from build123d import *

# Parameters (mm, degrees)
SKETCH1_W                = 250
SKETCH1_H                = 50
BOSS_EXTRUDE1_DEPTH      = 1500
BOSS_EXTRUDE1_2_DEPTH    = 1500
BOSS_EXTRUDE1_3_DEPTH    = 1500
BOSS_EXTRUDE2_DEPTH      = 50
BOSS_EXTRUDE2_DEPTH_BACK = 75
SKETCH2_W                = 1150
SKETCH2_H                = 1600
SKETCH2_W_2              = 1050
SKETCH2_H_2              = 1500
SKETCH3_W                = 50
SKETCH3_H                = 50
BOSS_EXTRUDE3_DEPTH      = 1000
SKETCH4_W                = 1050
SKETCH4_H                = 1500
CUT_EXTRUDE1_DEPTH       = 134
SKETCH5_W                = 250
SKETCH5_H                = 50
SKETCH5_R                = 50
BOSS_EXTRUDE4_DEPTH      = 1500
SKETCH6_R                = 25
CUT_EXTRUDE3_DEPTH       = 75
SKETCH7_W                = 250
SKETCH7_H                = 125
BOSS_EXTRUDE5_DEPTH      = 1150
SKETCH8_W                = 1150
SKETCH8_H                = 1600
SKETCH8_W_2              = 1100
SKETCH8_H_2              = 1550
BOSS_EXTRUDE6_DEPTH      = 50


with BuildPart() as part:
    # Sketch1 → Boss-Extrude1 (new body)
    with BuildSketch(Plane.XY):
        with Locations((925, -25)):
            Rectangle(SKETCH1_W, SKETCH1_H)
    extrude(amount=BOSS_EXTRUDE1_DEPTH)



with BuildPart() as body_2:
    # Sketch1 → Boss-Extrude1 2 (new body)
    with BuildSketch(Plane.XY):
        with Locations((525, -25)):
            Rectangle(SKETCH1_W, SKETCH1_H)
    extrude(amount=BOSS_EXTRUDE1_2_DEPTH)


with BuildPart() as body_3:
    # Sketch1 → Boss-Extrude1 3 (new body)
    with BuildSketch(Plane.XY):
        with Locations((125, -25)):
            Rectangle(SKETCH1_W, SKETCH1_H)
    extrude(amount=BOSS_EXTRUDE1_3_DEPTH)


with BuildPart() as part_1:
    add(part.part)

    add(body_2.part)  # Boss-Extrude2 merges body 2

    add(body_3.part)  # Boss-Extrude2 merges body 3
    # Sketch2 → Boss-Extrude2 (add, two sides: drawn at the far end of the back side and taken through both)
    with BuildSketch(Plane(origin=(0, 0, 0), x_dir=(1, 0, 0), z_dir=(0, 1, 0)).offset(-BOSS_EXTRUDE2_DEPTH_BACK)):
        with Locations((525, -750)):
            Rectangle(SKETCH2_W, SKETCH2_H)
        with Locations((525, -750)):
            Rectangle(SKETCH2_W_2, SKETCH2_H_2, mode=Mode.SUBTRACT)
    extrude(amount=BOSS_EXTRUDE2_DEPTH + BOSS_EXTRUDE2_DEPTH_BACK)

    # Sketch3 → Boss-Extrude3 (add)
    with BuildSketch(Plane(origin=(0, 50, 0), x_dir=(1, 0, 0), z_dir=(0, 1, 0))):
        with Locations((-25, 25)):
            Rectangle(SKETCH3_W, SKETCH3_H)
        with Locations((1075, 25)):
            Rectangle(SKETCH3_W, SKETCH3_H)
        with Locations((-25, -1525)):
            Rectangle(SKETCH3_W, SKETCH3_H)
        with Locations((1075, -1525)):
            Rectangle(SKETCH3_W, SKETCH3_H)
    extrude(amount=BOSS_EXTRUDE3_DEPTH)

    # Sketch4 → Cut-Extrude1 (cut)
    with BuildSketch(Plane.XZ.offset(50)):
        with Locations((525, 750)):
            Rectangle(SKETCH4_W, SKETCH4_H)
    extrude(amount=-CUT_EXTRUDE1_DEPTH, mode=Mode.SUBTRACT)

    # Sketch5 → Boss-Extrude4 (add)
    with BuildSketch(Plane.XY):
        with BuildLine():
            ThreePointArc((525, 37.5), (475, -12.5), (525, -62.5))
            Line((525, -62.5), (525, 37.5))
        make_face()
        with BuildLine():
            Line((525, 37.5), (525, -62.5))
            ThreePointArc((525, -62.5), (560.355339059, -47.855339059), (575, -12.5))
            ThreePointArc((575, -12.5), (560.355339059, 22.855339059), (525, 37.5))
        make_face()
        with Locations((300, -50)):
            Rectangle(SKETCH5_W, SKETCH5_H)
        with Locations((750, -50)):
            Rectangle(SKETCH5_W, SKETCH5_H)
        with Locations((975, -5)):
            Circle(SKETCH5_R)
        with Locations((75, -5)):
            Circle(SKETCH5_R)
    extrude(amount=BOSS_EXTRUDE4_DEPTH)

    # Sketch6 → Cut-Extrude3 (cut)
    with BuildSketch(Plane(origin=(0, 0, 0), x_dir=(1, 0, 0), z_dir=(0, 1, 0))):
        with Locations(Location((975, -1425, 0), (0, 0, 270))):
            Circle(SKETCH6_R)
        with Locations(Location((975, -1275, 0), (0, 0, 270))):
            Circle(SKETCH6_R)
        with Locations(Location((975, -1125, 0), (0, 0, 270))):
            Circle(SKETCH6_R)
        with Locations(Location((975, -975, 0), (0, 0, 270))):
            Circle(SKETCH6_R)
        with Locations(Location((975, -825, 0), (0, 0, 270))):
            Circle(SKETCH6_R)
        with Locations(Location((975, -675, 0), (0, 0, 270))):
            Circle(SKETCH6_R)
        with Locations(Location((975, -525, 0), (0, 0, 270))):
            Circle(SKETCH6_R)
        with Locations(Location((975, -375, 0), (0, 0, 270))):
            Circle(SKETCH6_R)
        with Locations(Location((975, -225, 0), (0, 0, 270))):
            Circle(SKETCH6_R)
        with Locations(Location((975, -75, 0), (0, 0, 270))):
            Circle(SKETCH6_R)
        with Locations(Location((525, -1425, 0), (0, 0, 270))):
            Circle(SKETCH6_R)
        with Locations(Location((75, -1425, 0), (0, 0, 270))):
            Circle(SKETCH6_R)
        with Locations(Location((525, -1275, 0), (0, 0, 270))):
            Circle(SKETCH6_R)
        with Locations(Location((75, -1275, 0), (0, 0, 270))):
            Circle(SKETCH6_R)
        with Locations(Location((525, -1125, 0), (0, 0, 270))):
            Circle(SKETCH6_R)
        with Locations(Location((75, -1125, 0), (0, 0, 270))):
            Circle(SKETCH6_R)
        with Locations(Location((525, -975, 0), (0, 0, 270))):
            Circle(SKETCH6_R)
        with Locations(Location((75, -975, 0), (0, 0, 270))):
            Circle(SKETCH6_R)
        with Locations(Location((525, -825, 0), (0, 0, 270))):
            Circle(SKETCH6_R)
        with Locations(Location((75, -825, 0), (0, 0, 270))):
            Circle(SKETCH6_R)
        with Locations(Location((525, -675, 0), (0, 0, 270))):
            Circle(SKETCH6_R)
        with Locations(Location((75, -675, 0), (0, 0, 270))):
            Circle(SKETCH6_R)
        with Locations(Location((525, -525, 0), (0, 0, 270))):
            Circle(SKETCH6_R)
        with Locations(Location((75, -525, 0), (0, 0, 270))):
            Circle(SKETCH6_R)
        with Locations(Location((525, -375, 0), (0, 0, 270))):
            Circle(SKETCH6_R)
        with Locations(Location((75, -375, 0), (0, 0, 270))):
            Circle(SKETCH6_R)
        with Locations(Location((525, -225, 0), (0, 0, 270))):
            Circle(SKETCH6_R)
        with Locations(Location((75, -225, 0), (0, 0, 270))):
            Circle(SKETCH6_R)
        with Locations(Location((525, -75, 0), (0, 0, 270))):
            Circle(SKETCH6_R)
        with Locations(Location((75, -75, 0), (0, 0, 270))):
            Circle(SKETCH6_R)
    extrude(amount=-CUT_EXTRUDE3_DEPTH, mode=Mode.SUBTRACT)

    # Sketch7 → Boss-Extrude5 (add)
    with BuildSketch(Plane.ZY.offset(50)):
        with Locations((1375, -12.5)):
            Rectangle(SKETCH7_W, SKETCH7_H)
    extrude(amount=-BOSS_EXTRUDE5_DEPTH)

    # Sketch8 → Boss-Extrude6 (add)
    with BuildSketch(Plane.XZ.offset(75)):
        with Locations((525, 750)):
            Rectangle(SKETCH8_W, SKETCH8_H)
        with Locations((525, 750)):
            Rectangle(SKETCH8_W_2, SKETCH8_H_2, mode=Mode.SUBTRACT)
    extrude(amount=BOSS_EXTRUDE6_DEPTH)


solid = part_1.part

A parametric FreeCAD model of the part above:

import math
import FreeCAD as App
import Part
import Sketcher
from FreeCAD import Vector
Q = App.Units.Quantity

doc = App.newDocument("Part")
params = doc.addObject("Spreadsheet::Sheet", "Params")
for row, (alias, value) in enumerate([
    ("sketch1_width", "250 mm"),
    ("sketch1_height", "50 mm"),
    ("pad1_length", "1500 mm"),
    ("sketch2_width", "250 mm"),
    ("sketch2_height", "50 mm"),
    ("pad2_length", "1500 mm"),
    ("sketch3_width", "250 mm"),
    ("sketch3_height", "50 mm"),
    ("pad3_length", "1500 mm"),
    ("sketch4_width", "1150 mm"),
    ("sketch4_width2", "1050 mm"),
    ("sketch4_height", "1600 mm"),
    ("sketch4_height2", "1500 mm"),
    ("pad4_length", "50 mm"),
    ("pad4_length2", "75 mm"),
    ("sketch5_width", "50 mm"),
    ("pad5_length", "1000 mm"),
    ("sketch6_width", "1050 mm"),
    ("sketch6_height", "1500 mm"),
    ("pocket1_length", "134 mm"),
    ("sketch7_diameter", "100 mm"),
    ("sketch7_width", "250 mm"),
    ("sketch7_height", "50 mm"),
    ("pad6_length", "1500 mm"),
    ("sketch8_diameter", "50 mm"),
    ("pocket2_length", "75 mm"),
    ("sketch9_width", "125 mm"),
    ("sketch9_height", "250 mm"),
    ("pad7_length", "1150 mm"),
    ("sketch10_width", "1150 mm"),
    ("sketch10_width2", "1100 mm"),
    ("sketch10_height", "1600 mm"),
    ("sketch10_height2", "1550 mm"),
    ("pad8_length", "50 mm"),
], start=1):
    params.set(f"A{row}", alias)
    params.set(f"B{row}", "=" + value)
    params.setAlias(f"B{row}", alias)

body = doc.addObject("PartDesign::Body", "Body")

sketch1 = doc.addObject("Sketcher::SketchObject", "Sketch")
body.addObject(sketch1)
sketch1.AttachmentSupport = (doc.XY_Plane, [""])
sketch1.MapMode = "FlatFace"
sketch1.addGeometry([
    Part.LineSegment(Vector(800, 0, 0), Vector(800, -50, 0)),
    Part.LineSegment(Vector(800, -50, 0), Vector(1050, -50, 0)),
    Part.LineSegment(Vector(1050, -50, 0), Vector(1050, 0, 0)),
    Part.LineSegment(Vector(1050, 0, 0), Vector(800, 0, 0)),
], False)
sketch1.addConstraint([
    Sketcher.Constraint("Coincident", 0, 2, 1, 1),
    Sketcher.Constraint("Coincident", 1, 2, 2, 1),
    Sketcher.Constraint("Coincident", 2, 2, 3, 1),
    Sketcher.Constraint("Coincident", 3, 2, 0, 1),
    Sketcher.Constraint("Vertical", 0),
    Sketcher.Constraint("Horizontal", 1),
    Sketcher.Constraint("Vertical", 2),
    Sketcher.Constraint("Horizontal", 3),
    Sketcher.Constraint("PointOnObject", 2, 2, -1),
    Sketcher.Constraint("DistanceX", 1, 1, 1, 2, Q("250 mm")),
    Sketcher.Constraint("DistanceY", 0, 2, 0, 1, Q("50 mm")),
    Sketcher.Constraint("DistanceX", -1, 1, 0, 2, Q("800 mm")),
])
sketch1.setExpression("Constraints[9]", "Params.sketch1_width")
sketch1.setExpression("Constraints[10]", "Params.sketch1_height")
pad1 = doc.addObject("PartDesign::Pad", "Pad")
body.addObject(pad1)
pad1.Profile = sketch1
pad1.setExpression("Length", "Params.pad1_length")
body2 = doc.addObject("PartDesign::Body", "Body001")

sketch2 = doc.addObject("Sketcher::SketchObject", "Sketch001")
body2.addObject(sketch2)
sketch2.AttachmentSupport = (doc.getObject("XY_Plane001"), [""])
sketch2.MapMode = "FlatFace"
sketch2.addGeometry([
    Part.LineSegment(Vector(400, 0, 0), Vector(400, -50, 0)),
    Part.LineSegment(Vector(400, -50, 0), Vector(650, -50, 0)),
    Part.LineSegment(Vector(650, -50, 0), Vector(650, 0, 0)),
    Part.LineSegment(Vector(650, 0, 0), Vector(400, 0, 0)),
], False)
sketch2.addConstraint([
    Sketcher.Constraint("Coincident", 0, 2, 1, 1),
    Sketcher.Constraint("Coincident", 1, 2, 2, 1),
    Sketcher.Constraint("Coincident", 2, 2, 3, 1),
    Sketcher.Constraint("Coincident", 3, 2, 0, 1),
    Sketcher.Constraint("Vertical", 0),
    Sketcher.Constraint("Horizontal", 1),
    Sketcher.Constraint("Vertical", 2),
    Sketcher.Constraint("Horizontal", 3),
    Sketcher.Constraint("PointOnObject", 2, 2, -1),
    Sketcher.Constraint("DistanceX", 1, 1, 1, 2, Q("250 mm")),
    Sketcher.Constraint("DistanceY", 0, 2, 0, 1, Q("50 mm")),
    Sketcher.Constraint("DistanceX", -1, 1, 0, 2, Q("400 mm")),
])
sketch2.setExpression("Constraints[9]", "Params.sketch2_width")
sketch2.setExpression("Constraints[10]", "Params.sketch2_height")
pad2 = doc.addObject("PartDesign::Pad", "Pad001")
body2.addObject(pad2)
pad2.Profile = sketch2
pad2.setExpression("Length", "Params.pad2_length")
body3 = doc.addObject("PartDesign::Body", "Body002")

sketch3 = doc.addObject("Sketcher::SketchObject", "Sketch002")
body3.addObject(sketch3)
sketch3.AttachmentSupport = (doc.getObject("XY_Plane002"), [""])
sketch3.MapMode = "FlatFace"
sketch3.addGeometry([
    Part.LineSegment(Vector(0, 0, 0), Vector(0, -50, 0)),
    Part.LineSegment(Vector(0, -50, 0), Vector(250, -50, 0)),
    Part.LineSegment(Vector(250, -50, 0), Vector(250, 0, 0)),
    Part.LineSegment(Vector(250, 0, 0), Vector(0, 0, 0)),
], False)
sketch3.addConstraint([
    Sketcher.Constraint("Coincident", 0, 2, 1, 1),
    Sketcher.Constraint("Coincident", 1, 2, 2, 1),
    Sketcher.Constraint("Coincident", 2, 2, 3, 1),
    Sketcher.Constraint("Coincident", 3, 2, 0, 1),
    Sketcher.Constraint("Vertical", 0),
    Sketcher.Constraint("Horizontal", 1),
    Sketcher.Constraint("Vertical", 2),
    Sketcher.Constraint("Horizontal", 3),
    Sketcher.Constraint("Coincident", 3, 2, -1, 1),
    Sketcher.Constraint("DistanceX", 1, 1, 1, 2, Q("250 mm")),
    Sketcher.Constraint("DistanceY", 0, 2, 0, 1, Q("50 mm")),
])
sketch3.setExpression("Constraints[9]", "Params.sketch3_width")
sketch3.setExpression("Constraints[10]", "Params.sketch3_height")
pad3 = doc.addObject("PartDesign::Pad", "Pad002")
body3.addObject(pad3)
pad3.Profile = sketch3
pad3.setExpression("Length", "Params.pad3_length")
body.AllowCompound = True
doc.recompute()

boolean = doc.addObject("PartDesign::Boolean", "Boolean")
body.addObject(boolean)
boolean.Type = "Fuse"
boolean.addObjects([body2])
doc.recompute()

boolean2 = doc.addObject("PartDesign::Boolean", "Boolean001")
body.addObject(boolean2)
boolean2.Type = "Fuse"
boolean2.addObjects([body3])

sketch4 = doc.addObject("Sketcher::SketchObject", "Sketch003")
body.addObject(sketch4)
sketch4.AttachmentSupport = (doc.XZ_Plane, [""])
sketch4.MapMode = "FlatFace"
sketch4.addGeometry([
    Part.LineSegment(Vector(-50, -50, 0), Vector(-50, 1550, 0)),
    Part.LineSegment(Vector(-50, 1550, 0), Vector(1100, 1550, 0)),
    Part.LineSegment(Vector(1100, 1550, 0), Vector(1100, -50, 0)),
    Part.LineSegment(Vector(1100, -50, 0), Vector(-50, -50, 0)),
    Part.LineSegment(Vector(1050, 1500, 0), Vector(0, 1500, 0)),
    Part.LineSegment(Vector(0, 1500, 0), Vector(0, 0, 0)),
    Part.LineSegment(Vector(0, 0, 0), Vector(1050, 0, 0)),
    Part.LineSegment(Vector(1050, 0, 0), Vector(1050, 1500, 0)),
], False)
sketch4.addConstraint([
    Sketcher.Constraint("Coincident", 0, 2, 1, 1),
    Sketcher.Constraint("Coincident", 1, 2, 2, 1),
    Sketcher.Constraint("Coincident", 2, 2, 3, 1),
    Sketcher.Constraint("Coincident", 3, 2, 0, 1),
    Sketcher.Constraint("Coincident", 4, 2, 5, 1),
    Sketcher.Constraint("Coincident", 5, 2, 6, 1),
    Sketcher.Constraint("Coincident", 6, 2, 7, 1),
    Sketcher.Constraint("Coincident", 7, 2, 4, 1),
    Sketcher.Constraint("Vertical", 0),
    Sketcher.Constraint("Horizontal", 1),
    Sketcher.Constraint("Vertical", 2),
    Sketcher.Constraint("Horizontal", 3),
    Sketcher.Constraint("Horizontal", 4),
    Sketcher.Constraint("Vertical", 5),
    Sketcher.Constraint("Horizontal", 6),
    Sketcher.Constraint("Vertical", 7),
    Sketcher.Constraint("Coincident", 5, 2, -1, 1),
    Sketcher.Constraint("DistanceX", 1, 1, 1, 2, Q("1150 mm")),
    Sketcher.Constraint("DistanceX", 4, 2, 4, 1, Q("1050 mm")),
    Sketcher.Constraint("DistanceY", 0, 1, 0, 2, Q("1600 mm")),
    Sketcher.Constraint("DistanceY", 5, 2, 5, 1, Q("1500 mm")),
    Sketcher.Constraint("DistanceX", 0, 2, -1, 1, Q("50 mm")),
    Sketcher.Constraint("DistanceY", -1, 1, 0, 2, Q("1550 mm")),
])
sketch4.setExpression("Constraints[17]", "Params.sketch4_width")
sketch4.setExpression("Constraints[18]", "Params.sketch4_width2")
sketch4.setExpression("Constraints[19]", "Params.sketch4_height")
sketch4.setExpression("Constraints[20]", "Params.sketch4_height2")
pad4 = doc.addObject("PartDesign::Pad", "Pad003")
body.addObject(pad4)
pad4.Profile = sketch4
pad4.Type = "TwoLengths"
pad4.setExpression("Length", "Params.pad4_length")
pad4.setExpression("Length2", "Params.pad4_length2")
pad4.Reversed = True

sketch5 = doc.addObject("Sketcher::SketchObject", "Sketch004")
body.addObject(sketch5)
sketch5.AttachmentSupport = (doc.XZ_Plane, [""])
sketch5.MapMode = "FlatFace"
sketch5.AttachmentOffset = App.Placement(Vector(0, 0, -50), App.Rotation())
sketch5.addGeometry([
    Part.LineSegment(Vector(-50, -50, 0), Vector(-50, 0, 0)),
    Part.LineSegment(Vector(-50, 0, 0), Vector(0, 0, 0)),
    Part.LineSegment(Vector(0, 0, 0), Vector(0, -50, 0)),
    Part.LineSegment(Vector(0, -50, 0), Vector(-50, -50, 0)),
    Part.LineSegment(Vector(1050, -50, 0), Vector(1050, 0, 0)),
    Part.LineSegment(Vector(1050, 0, 0), Vector(1100, 0, 0)),
    Part.LineSegment(Vector(1100, 0, 0), Vector(1100, -50, 0)),
    Part.LineSegment(Vector(1100, -50, 0), Vector(1050, -50, 0)),
    Part.LineSegment(Vector(-50, 1500, 0), Vector(-50, 1550, 0)),
    Part.LineSegment(Vector(-50, 1550, 0), Vector(0, 1550, 0)),
    Part.LineSegment(Vector(0, 1550, 0), Vector(0, 1500, 0)),
    Part.LineSegment(Vector(0, 1500, 0), Vector(-50, 1500, 0)),
    Part.LineSegment(Vector(1050, 1500, 0), Vector(1050, 1550, 0)),
    Part.LineSegment(Vector(1050, 1550, 0), Vector(1100, 1550, 0)),
    Part.LineSegment(Vector(1100, 1550, 0), Vector(1100, 1500, 0)),
    Part.LineSegment(Vector(1100, 1500, 0), Vector(1050, 1500, 0)),
], False)
sketch5.addConstraint([
    Sketcher.Constraint("Coincident", 0, 2, 1, 1),
    Sketcher.Constraint("Coincident", 1, 2, 2, 1),
    Sketcher.Constraint("Coincident", 2, 2, 3, 1),
    Sketcher.Constraint("Coincident", 3, 2, 0, 1),
    Sketcher.Constraint("Coincident", 4, 2, 5, 1),
    Sketcher.Constraint("Coincident", 5, 2, 6, 1),
    Sketcher.Constraint("Coincident", 6, 2, 7, 1),
    Sketcher.Constraint("Coincident", 7, 2, 4, 1),
    Sketcher.Constraint("Coincident", 8, 2, 9, 1),
    Sketcher.Constraint("Coincident", 9, 2, 10, 1),
    Sketcher.Constraint("Coincident", 10, 2, 11, 1),
    Sketcher.Constraint("Coincident", 11, 2, 8, 1),
    Sketcher.Constraint("Coincident", 12, 2, 13, 1),
    Sketcher.Constraint("Coincident", 13, 2, 14, 1),
    Sketcher.Constraint("Coincident", 14, 2, 15, 1),
    Sketcher.Constraint("Coincident", 15, 2, 12, 1),
    Sketcher.Constraint("Vertical", 0),
    Sketcher.Constraint("Horizontal", 1),
    Sketcher.Constraint("Vertical", 2),
    Sketcher.Constraint("Horizontal", 3),
    Sketcher.Constraint("Vertical", 4),
    Sketcher.Constraint("Horizontal", 5),
    Sketcher.Constraint("Vertical", 6),
    Sketcher.Constraint("Horizontal", 7),
    Sketcher.Constraint("Vertical", 8),
    Sketcher.Constraint("Horizontal", 9),
    Sketcher.Constraint("Vertical", 10),
    Sketcher.Constraint("Horizontal", 11),
    Sketcher.Constraint("Vertical", 12),
    Sketcher.Constraint("Horizontal", 13),
    Sketcher.Constraint("Vertical", 14),
    Sketcher.Constraint("Horizontal", 15),
    Sketcher.Constraint("Coincident", 1, 2, -1, 1),
    Sketcher.Constraint("PointOnObject", 4, 2, -1),
    Sketcher.Constraint("PointOnObject", 9, 2, -2),
    Sketcher.Constraint("Horizontal", 3, 2, 6, 2),
    Sketcher.Constraint("Horizontal", 9, 2, 12, 2),
    Sketcher.Constraint("Horizontal", 11, 2, 14, 2),
    Sketcher.Constraint("Vertical", 3, 2, 8, 2),
    Sketcher.Constraint("Vertical", 7, 2, 12, 2),
    Sketcher.Constraint("Vertical", 6, 2, 13, 2),
    Sketcher.Constraint("Equal", 3, 5),
    Sketcher.Constraint("Equal", 15, 0),
    Sketcher.Constraint("Equal", 6, 8),
    Sketcher.Constraint("DistanceX", 1, 1, 1, 2, Q("50 mm")),
    Sketcher.Constraint("DistanceX", -1, 1, 4, 2, Q("1050 mm")),
    Sketcher.Constraint("DistanceY", -1, 1, 8, 2, Q("1550 mm")),
])
sketch5.setExpression("Constraints[44]", "Params.sketch5_width")
pad5 = doc.addObject("PartDesign::Pad", "Pad004")
body.addObject(pad5)
pad5.Profile = sketch5
pad5.setExpression("Length", "Params.pad5_length")
pad5.Reversed = True

sketch6 = doc.addObject("Sketcher::SketchObject", "Sketch005")
body.addObject(sketch6)
sketch6.AttachmentSupport = (doc.XZ_Plane, [""])
sketch6.MapMode = "FlatFace"
sketch6.AttachmentOffset = App.Placement(Vector(0, 0, 50), App.Rotation())
sketch6.addGeometry([
    Part.LineSegment(Vector(0, 1500, 0), Vector(0, 0, 0)),
    Part.LineSegment(Vector(0, 0, 0), Vector(1050, 0, 0)),
    Part.LineSegment(Vector(1050, 0, 0), Vector(1050, 1500, 0)),
    Part.LineSegment(Vector(1050, 1500, 0), Vector(0, 1500, 0)),
], False)
sketch6.addConstraint([
    Sketcher.Constraint("Coincident", 0, 2, 1, 1),
    Sketcher.Constraint("Coincident", 1, 2, 2, 1),
    Sketcher.Constraint("Coincident", 2, 2, 3, 1),
    Sketcher.Constraint("Coincident", 3, 2, 0, 1),
    Sketcher.Constraint("Vertical", 0),
    Sketcher.Constraint("Horizontal", 1),
    Sketcher.Constraint("Vertical", 2),
    Sketcher.Constraint("Horizontal", 3),
    Sketcher.Constraint("Coincident", 0, 2, -1, 1),
    Sketcher.Constraint("DistanceX", 1, 1, 1, 2, Q("1050 mm")),
    Sketcher.Constraint("DistanceY", 0, 2, 0, 1, Q("1500 mm")),
])
sketch6.setExpression("Constraints[9]", "Params.sketch6_width")
sketch6.setExpression("Constraints[10]", "Params.sketch6_height")
pocket1 = doc.addObject("PartDesign::Pocket", "Pocket")
body.addObject(pocket1)
pocket1.Profile = sketch6
pocket1.setExpression("Length", "Params.pocket1_length")

sketch7 = doc.addObject("Sketcher::SketchObject", "Sketch006")
body.addObject(sketch7)
sketch7.AttachmentSupport = (doc.XY_Plane, [""])
sketch7.MapMode = "FlatFace"
sketch7.addGeometry([
    Part.ArcOfCircle(Part.Circle(Vector(525, -12, 0), Vector(0, 0, 1), 50), math.radians(90), math.radians(270)),
    Part.ArcOfCircle(Part.Circle(Vector(525, -12, 0), Vector(0, 0, 1), 50), math.radians(-90), math.radians(0)),
    Part.ArcOfCircle(Part.Circle(Vector(525, -13, 0), Vector(0, 0, 1), 50), math.radians(0), math.radians(90)),
    Part.LineSegment(Vector(175, -25, 0), Vector(175, -75, 0)),
    Part.LineSegment(Vector(175, -75, 0), Vector(425, -75, 0)),
    Part.LineSegment(Vector(425, -75, 0), Vector(425, -25, 0)),
    Part.LineSegment(Vector(425, -25, 0), Vector(175, -25, 0)),
    Part.LineSegment(Vector(625, -25, 0), Vector(625, -75, 0)),
    Part.LineSegment(Vector(625, -75, 0), Vector(875, -75, 0)),
    Part.LineSegment(Vector(875, -75, 0), Vector(875, -25, 0)),
    Part.LineSegment(Vector(875, -25, 0), Vector(625, -25, 0)),
    Part.Circle(Vector(975, -5, 0), Vector(0, 0, 1), 50),
    Part.Circle(Vector(75, -5, 0), Vector(0, 0, 1), 50),
], False)
sketch7.addConstraint([
    Sketcher.Constraint("Tangent", 0, 2, 1, 1),
    Sketcher.Constraint("Tangent", 1, 2, 2, 1),
    Sketcher.Constraint("Tangent", 2, 2, 0, 1),
    Sketcher.Constraint("Coincident", 3, 2, 4, 1),
    Sketcher.Constraint("Coincident", 4, 2, 5, 1),
    Sketcher.Constraint("Coincident", 5, 2, 6, 1),
    Sketcher.Constraint("Coincident", 6, 2, 3, 1),
    Sketcher.Constraint("Coincident", 7, 2, 8, 1),
    Sketcher.Constraint("Coincident", 8, 2, 9, 1),
    Sketcher.Constraint("Coincident", 9, 2, 10, 1),
    Sketcher.Constraint("Coincident", 10, 2, 7, 1),
    Sketcher.Constraint("Vertical", 3),
    Sketcher.Constraint("Horizontal", 4),
    Sketcher.Constraint("Vertical", 5),
    Sketcher.Constraint("Horizontal", 6),
    Sketcher.Constraint("Vertical", 7),
    Sketcher.Constraint("Horizontal", 8),
    Sketcher.Constraint("Vertical", 9),
    Sketcher.Constraint("Horizontal", 10),
    Sketcher.Constraint("Equal", 2, 11),
    Sketcher.Constraint("Equal", 11, 12),
    Sketcher.Constraint("Horizontal", 11, 3, 12, 3),
    Sketcher.Constraint("Horizontal", 2, 3, 1, 2),
    Sketcher.Constraint("Horizontal", 4, 2, 7, 2),
    Sketcher.Constraint("Horizontal", 6, 2, 9, 2),
    Sketcher.Constraint("Vertical", 2, 3, 0, 2),
    Sketcher.Constraint("Vertical", 0, 2, 2, 2),
    Sketcher.Constraint("Equal", 6, 8),
    Sketcher.Constraint("Diameter", 11, Q("100 mm")),
    Sketcher.Constraint("DistanceX", 4, 1, 4, 2, Q("250 mm")),
    Sketcher.Constraint("DistanceY", 3, 2, 3, 1, Q("50 mm")),
    Sketcher.Constraint("DistanceX", -1, 1, 0, 3, Q("525 mm")),
    Sketcher.Constraint("DistanceX", -1, 1, 11, 3, Q("975 mm")),
    Sketcher.Constraint("DistanceY", 11, 3, -1, 1, Q("5 mm")),
    Sketcher.Constraint("DistanceX", -1, 1, 12, 3, Q("75 mm")),
    Sketcher.Constraint("DistanceX", -1, 1, 3, 2, Q("175 mm")),
    Sketcher.Constraint("DistanceY", 3, 2, -1, 1, Q("75 mm")),
    Sketcher.Constraint("DistanceX", -1, 1, 7, 2, Q("625 mm")),
    Sketcher.Constraint("DistanceY", 0, 3, -1, 1, Q("12.5 mm")),
])
sketch7.setExpression("Constraints[28]", "Params.sketch7_diameter")
sketch7.setExpression("Constraints[29]", "Params.sketch7_width")
sketch7.setExpression("Constraints[30]", "Params.sketch7_height")
pad6 = doc.addObject("PartDesign::Pad", "Pad005")
body.addObject(pad6)
pad6.Profile = sketch7
pad6.setExpression("Length", "Params.pad6_length")

sketch8 = doc.addObject("Sketcher::SketchObject", "Sketch007")
body.addObject(sketch8)
sketch8.AttachmentSupport = (doc.XZ_Plane, [""])
sketch8.MapMode = "FlatFace"
sketch8.addGeometry([
    Part.Circle(Vector(975, 1425, 0), Vector(0, 0, 1), 25),
    Part.Circle(Vector(975, 1275, 0), Vector(0, 0, 1), 25),
    Part.Circle(Vector(975, 1125, 0), Vector(0, 0, 1), 25),
    Part.Circle(Vector(975, 975, 0), Vector(0, 0, 1), 25),
    Part.Circle(Vector(975, 825, 0), Vector(0, 0, 1), 25),
    Part.Circle(Vector(975, 675, 0), Vector(0, 0, 1), 25),
    Part.Circle(Vector(975, 525, 0), Vector(0, 0, 1), 25),
    Part.Circle(Vector(975, 375, 0), Vector(0, 0, 1), 25),
    Part.Circle(Vector(975, 225, 0), Vector(0, 0, 1), 25),
    Part.Circle(Vector(975, 75, 0), Vector(0, 0, 1), 25),
    Part.Circle(Vector(525, 1425, 0), Vector(0, 0, 1), 25),
    Part.Circle(Vector(75, 1425, 0), Vector(0, 0, 1), 25),
    Part.Circle(Vector(525, 1275, 0), Vector(0, 0, 1), 25),
    Part.Circle(Vector(75, 1275, 0), Vector(0, 0, 1), 25),
    Part.Circle(Vector(525, 1125, 0), Vector(0, 0, 1), 25),
    Part.Circle(Vector(75, 1125, 0), Vector(0, 0, 1), 25),
    Part.Circle(Vector(525, 975, 0), Vector(0, 0, 1), 25),
    Part.Circle(Vector(75, 975, 0), Vector(0, 0, 1), 25),
    Part.Circle(Vector(525, 825, 0), Vector(0, 0, 1), 25),
    Part.Circle(Vector(75, 825, 0), Vector(0, 0, 1), 25),
    Part.Circle(Vector(525, 675, 0), Vector(0, 0, 1), 25),
    Part.Circle(Vector(75, 675, 0), Vector(0, 0, 1), 25),
    Part.Circle(Vector(525, 525, 0), Vector(0, 0, 1), 25),
    Part.Circle(Vector(75, 525, 0), Vector(0, 0, 1), 25),
    Part.Circle(Vector(525, 375, 0), Vector(0, 0, 1), 25),
    Part.Circle(Vector(75, 375, 0), Vector(0, 0, 1), 25),
    Part.Circle(Vector(525, 225, 0), Vector(0, 0, 1), 25),
    Part.Circle(Vector(75, 225, 0), Vector(0, 0, 1), 25),
    Part.Circle(Vector(525, 75, 0), Vector(0, 0, 1), 25),
    Part.Circle(Vector(75, 75, 0), Vector(0, 0, 1), 25),
], False)
sketch8.addConstraint([
    Sketcher.Constraint("Equal", 0, 1),
    Sketcher.Constraint("Equal", 1, 2),
    Sketcher.Constraint("Equal", 2, 3),
    Sketcher.Constraint("Equal", 3, 4),
    Sketcher.Constraint("Equal", 4, 5),
    Sketcher.Constraint("Equal", 5, 6),
    Sketcher.Constraint("Equal", 6, 7),
    Sketcher.Constraint("Equal", 7, 8),
    Sketcher.Constraint("Equal", 8, 9),
    Sketcher.Constraint("Equal", 9, 10),
    Sketcher.Constraint("Equal", 10, 11),
    Sketcher.Constraint("Equal", 11, 12),
    Sketcher.Constraint("Equal", 12, 13),
    Sketcher.Constraint("Equal", 13, 14),
    Sketcher.Constraint("Equal", 14, 15),
    Sketcher.Constraint("Equal", 15, 16),
    Sketcher.Constraint("Equal", 16, 17),
    Sketcher.Constraint("Equal", 17, 18),
    Sketcher.Constraint("Equal", 18, 19),
    Sketcher.Constraint("Equal", 19, 20),
    Sketcher.Constraint("Equal", 20, 21),
    Sketcher.Constraint("Equal", 21, 22),
    Sketcher.Constraint("Equal", 22, 23),
    Sketcher.Constraint("Equal", 23, 24),
    Sketcher.Constraint("Equal", 24, 25),
    Sketcher.Constraint("Equal", 25, 26),
    Sketcher.Constraint("Equal", 26, 27),
    Sketcher.Constraint("Equal", 27, 28),
    Sketcher.Constraint("Equal", 28, 29),
    Sketcher.Constraint("Horizontal", 0, 3, 10, 3),
    Sketcher.Constraint("Horizontal", 10, 3, 11, 3),
    Sketcher.Constraint("Horizontal", 1, 3, 12, 3),
    Sketcher.Constraint("Horizontal", 12, 3, 13, 3),
    Sketcher.Constraint("Horizontal", 2, 3, 14, 3),
    Sketcher.Constraint("Horizontal", 14, 3, 15, 3),
    Sketcher.Constraint("Horizontal", 3, 3, 16, 3),
    Sketcher.Constraint("Horizontal", 16, 3, 17, 3),
    Sketcher.Constraint("Horizontal", 4, 3, 18, 3),
    Sketcher.Constraint("Horizontal", 18, 3, 19, 3),
    Sketcher.Constraint("Horizontal", 5, 3, 20, 3),
    Sketcher.Constraint("Horizontal", 20, 3, 21, 3),
    Sketcher.Constraint("Horizontal", 6, 3, 22, 3),
    Sketcher.Constraint("Horizontal", 22, 3, 23, 3),
    Sketcher.Constraint("Horizontal", 7, 3, 24, 3),
    Sketcher.Constraint("Horizontal", 24, 3, 25, 3),
    Sketcher.Constraint("Horizontal", 8, 3, 26, 3),
    Sketcher.Constraint("Horizontal", 26, 3, 27, 3),
    Sketcher.Constraint("Horizontal", 9, 3, 28, 3),
    Sketcher.Constraint("Horizontal", 28, 3, 29, 3),
    Sketcher.Constraint("Vertical", 0, 3, 1, 3),
    Sketcher.Constraint("Vertical", 1, 3, 2, 3),
    Sketcher.Constraint("Vertical", 2, 3, 3, 3),
    Sketcher.Constraint("Vertical", 3, 3, 4, 3),
    Sketcher.Constraint("Vertical", 4, 3, 5, 3),
    Sketcher.Constraint("Vertical", 5, 3, 6, 3),
    Sketcher.Constraint("Vertical", 6, 3, 7, 3),
    Sketcher.Constraint("Vertical", 7, 3, 8, 3),
    Sketcher.Constraint("Vertical", 8, 3, 9, 3),
    Sketcher.Constraint("Vertical", 10, 3, 12, 3),
    Sketcher.Constraint("Vertical", 11, 3, 13, 3),
    Sketcher.Constraint("Vertical", 12, 3, 14, 3),
    Sketcher.Constraint("Vertical", 13, 3, 15, 3),
    Sketcher.Constraint("Vertical", 14, 3, 16, 3),
    Sketcher.Constraint("Vertical", 15, 3, 17, 3),
    Sketcher.Constraint("Vertical", 16, 3, 18, 3),
    Sketcher.Constraint("Vertical", 17, 3, 19, 3),
    Sketcher.Constraint("Vertical", 18, 3, 20, 3),
    Sketcher.Constraint("Vertical", 19, 3, 21, 3),
    Sketcher.Constraint("Vertical", 20, 3, 22, 3),
    Sketcher.Constraint("Vertical", 21, 3, 23, 3),
    Sketcher.Constraint("Vertical", 22, 3, 24, 3),
    Sketcher.Constraint("Vertical", 23, 3, 25, 3),
    Sketcher.Constraint("Vertical", 24, 3, 26, 3),
    Sketcher.Constraint("Vertical", 25, 3, 27, 3),
    Sketcher.Constraint("Vertical", 26, 3, 28, 3),
    Sketcher.Constraint("Vertical", 27, 3, 29, 3),
    Sketcher.Constraint("Diameter", 0, Q("50 mm")),
    Sketcher.Constraint("DistanceX", -1, 1, 0, 3, Q("975 mm")),
    Sketcher.Constraint("DistanceY", -1, 1, 0, 3, Q("1425 mm")),
    Sketcher.Constraint("DistanceY", -1, 1, 1, 3, Q("1275 mm")),
    Sketcher.Constraint("DistanceY", -1, 1, 2, 3, Q("1125 mm")),
    Sketcher.Constraint("DistanceY", -1, 1, 3, 3, Q("975 mm")),
    Sketcher.Constraint("DistanceY", -1, 1, 4, 3, Q("825 mm")),
    Sketcher.Constraint("DistanceY", -1, 1, 5, 3, Q("675 mm")),
    Sketcher.Constraint("DistanceY", -1, 1, 6, 3, Q("525 mm")),
    Sketcher.Constraint("DistanceY", -1, 1, 7, 3, Q("375 mm")),
    Sketcher.Constraint("DistanceY", -1, 1, 8, 3, Q("225 mm")),
    Sketcher.Constraint("DistanceY", -1, 1, 9, 3, Q("75 mm")),
    Sketcher.Constraint("DistanceX", -1, 1, 10, 3, Q("525 mm")),
    Sketcher.Constraint("DistanceX", -1, 1, 11, 3, Q("75 mm")),
])
sketch8.setExpression("Constraints[76]", "Params.sketch8_diameter")
pocket2 = doc.addObject("PartDesign::Pocket", "Pocket001")
body.addObject(pocket2)
pocket2.Profile = sketch8
pocket2.setExpression("Length", "Params.pocket2_length")
pocket2.Reversed = True

sketch9 = doc.addObject("Sketcher::SketchObject", "Sketch008")
body.addObject(sketch9)
sketch9.AttachmentSupport = (doc.YZ_Plane, [""])
sketch9.MapMode = "FlatFace"
sketch9.AttachmentOffset = App.Placement(Vector(0, 0, -50), App.Rotation())
sketch9.addGeometry([
    Part.LineSegment(Vector(50, 1250, 0), Vector(-75, 1250, 0)),
    Part.LineSegment(Vector(-75, 1250, 0), Vector(-75, 1500, 0)),
    Part.LineSegment(Vector(-75, 1500, 0), Vector(50, 1500, 0)),
    Part.LineSegment(Vector(50, 1500, 0), Vector(50, 1250, 0)),
], False)
sketch9.addConstraint([
    Sketcher.Constraint("Coincident", 0, 2, 1, 1),
    Sketcher.Constraint("Coincident", 1, 2, 2, 1),
    Sketcher.Constraint("Coincident", 2, 2, 3, 1),
    Sketcher.Constraint("Coincident", 3, 2, 0, 1),
    Sketcher.Constraint("Horizontal", 0),
    Sketcher.Constraint("Vertical", 1),
    Sketcher.Constraint("Horizontal", 2),
    Sketcher.Constraint("Vertical", 3),
    Sketcher.Constraint("DistanceX", 0, 2, 0, 1, Q("125 mm")),
    Sketcher.Constraint("DistanceY", 1, 1, 1, 2, Q("250 mm")),
    Sketcher.Constraint("DistanceX", 0, 2, -1, 1, Q("75 mm")),
    Sketcher.Constraint("DistanceY", -1, 1, 0, 2, Q("1250 mm")),
])
sketch9.setExpression("Constraints[8]", "Params.sketch9_width")
sketch9.setExpression("Constraints[9]", "Params.sketch9_height")
pad7 = doc.addObject("PartDesign::Pad", "Pad006")
body.addObject(pad7)
pad7.Profile = sketch9
pad7.setExpression("Length", "Params.pad7_length")

sketch10 = doc.addObject("Sketcher::SketchObject", "Sketch009")
body.addObject(sketch10)
sketch10.AttachmentSupport = (doc.XZ_Plane, [""])
sketch10.MapMode = "FlatFace"
sketch10.AttachmentOffset = App.Placement(Vector(0, 0, 75), App.Rotation())
sketch10.addGeometry([
    Part.LineSegment(Vector(-50, 1550, 0), Vector(-50, -50, 0)),
    Part.LineSegment(Vector(-50, -50, 0), Vector(1100, -50, 0)),
    Part.LineSegment(Vector(1100, -50, 0), Vector(1100, 1550, 0)),
    Part.LineSegment(Vector(1100, 1550, 0), Vector(-50, 1550, 0)),
    Part.LineSegment(Vector(1075, -25, 0), Vector(-25, -25, 0)),
    Part.LineSegment(Vector(-25, -25, 0), Vector(-25, 1525, 0)),
    Part.LineSegment(Vector(-25, 1525, 0), Vector(1075, 1525, 0)),
    Part.LineSegment(Vector(1075, 1525, 0), Vector(1075, -25, 0)),
], False)
sketch10.addConstraint([
    Sketcher.Constraint("Coincident", 0, 2, 1, 1),
    Sketcher.Constraint("Coincident", 1, 2, 2, 1),
    Sketcher.Constraint("Coincident", 2, 2, 3, 1),
    Sketcher.Constraint("Coincident", 3, 2, 0, 1),
    Sketcher.Constraint("Coincident", 4, 2, 5, 1),
    Sketcher.Constraint("Coincident", 5, 2, 6, 1),
    Sketcher.Constraint("Coincident", 6, 2, 7, 1),
    Sketcher.Constraint("Coincident", 7, 2, 4, 1),
    Sketcher.Constraint("Vertical", 0),
    Sketcher.Constraint("Horizontal", 1),
    Sketcher.Constraint("Vertical", 2),
    Sketcher.Constraint("Horizontal", 3),
    Sketcher.Constraint("Horizontal", 4),
    Sketcher.Constraint("Vertical", 5),
    Sketcher.Constraint("Horizontal", 6),
    Sketcher.Constraint("Vertical", 7),
    Sketcher.Constraint("DistanceX", 1, 1, 1, 2, Q("1150 mm")),
    Sketcher.Constraint("DistanceX", 4, 2, 4, 1, Q("1100 mm")),
    Sketcher.Constraint("DistanceY", 0, 2, 0, 1, Q("1600 mm")),
    Sketcher.Constraint("DistanceY", 5, 1, 5, 2, Q("1550 mm")),
    Sketcher.Constraint("DistanceX", 0, 2, -1, 1, Q("50 mm")),
    Sketcher.Constraint("DistanceY", 0, 2, -1, 1, Q("50 mm")),
    Sketcher.Constraint("DistanceX", 4, 2, -1, 1, Q("25 mm")),
    Sketcher.Constraint("DistanceY", 4, 2, -1, 1, Q("25 mm")),
])
sketch10.setExpression("Constraints[16]", "Params.sketch10_width")
sketch10.setExpression("Constraints[17]", "Params.sketch10_width2")
sketch10.setExpression("Constraints[18]", "Params.sketch10_height")
sketch10.setExpression("Constraints[19]", "Params.sketch10_height2")
pad8 = doc.addObject("PartDesign::Pad", "Pad007")
body.addObject(pad8)
pad8.Profile = sketch10
pad8.setExpression("Length", "Params.pad8_length")

doc.recompute()
